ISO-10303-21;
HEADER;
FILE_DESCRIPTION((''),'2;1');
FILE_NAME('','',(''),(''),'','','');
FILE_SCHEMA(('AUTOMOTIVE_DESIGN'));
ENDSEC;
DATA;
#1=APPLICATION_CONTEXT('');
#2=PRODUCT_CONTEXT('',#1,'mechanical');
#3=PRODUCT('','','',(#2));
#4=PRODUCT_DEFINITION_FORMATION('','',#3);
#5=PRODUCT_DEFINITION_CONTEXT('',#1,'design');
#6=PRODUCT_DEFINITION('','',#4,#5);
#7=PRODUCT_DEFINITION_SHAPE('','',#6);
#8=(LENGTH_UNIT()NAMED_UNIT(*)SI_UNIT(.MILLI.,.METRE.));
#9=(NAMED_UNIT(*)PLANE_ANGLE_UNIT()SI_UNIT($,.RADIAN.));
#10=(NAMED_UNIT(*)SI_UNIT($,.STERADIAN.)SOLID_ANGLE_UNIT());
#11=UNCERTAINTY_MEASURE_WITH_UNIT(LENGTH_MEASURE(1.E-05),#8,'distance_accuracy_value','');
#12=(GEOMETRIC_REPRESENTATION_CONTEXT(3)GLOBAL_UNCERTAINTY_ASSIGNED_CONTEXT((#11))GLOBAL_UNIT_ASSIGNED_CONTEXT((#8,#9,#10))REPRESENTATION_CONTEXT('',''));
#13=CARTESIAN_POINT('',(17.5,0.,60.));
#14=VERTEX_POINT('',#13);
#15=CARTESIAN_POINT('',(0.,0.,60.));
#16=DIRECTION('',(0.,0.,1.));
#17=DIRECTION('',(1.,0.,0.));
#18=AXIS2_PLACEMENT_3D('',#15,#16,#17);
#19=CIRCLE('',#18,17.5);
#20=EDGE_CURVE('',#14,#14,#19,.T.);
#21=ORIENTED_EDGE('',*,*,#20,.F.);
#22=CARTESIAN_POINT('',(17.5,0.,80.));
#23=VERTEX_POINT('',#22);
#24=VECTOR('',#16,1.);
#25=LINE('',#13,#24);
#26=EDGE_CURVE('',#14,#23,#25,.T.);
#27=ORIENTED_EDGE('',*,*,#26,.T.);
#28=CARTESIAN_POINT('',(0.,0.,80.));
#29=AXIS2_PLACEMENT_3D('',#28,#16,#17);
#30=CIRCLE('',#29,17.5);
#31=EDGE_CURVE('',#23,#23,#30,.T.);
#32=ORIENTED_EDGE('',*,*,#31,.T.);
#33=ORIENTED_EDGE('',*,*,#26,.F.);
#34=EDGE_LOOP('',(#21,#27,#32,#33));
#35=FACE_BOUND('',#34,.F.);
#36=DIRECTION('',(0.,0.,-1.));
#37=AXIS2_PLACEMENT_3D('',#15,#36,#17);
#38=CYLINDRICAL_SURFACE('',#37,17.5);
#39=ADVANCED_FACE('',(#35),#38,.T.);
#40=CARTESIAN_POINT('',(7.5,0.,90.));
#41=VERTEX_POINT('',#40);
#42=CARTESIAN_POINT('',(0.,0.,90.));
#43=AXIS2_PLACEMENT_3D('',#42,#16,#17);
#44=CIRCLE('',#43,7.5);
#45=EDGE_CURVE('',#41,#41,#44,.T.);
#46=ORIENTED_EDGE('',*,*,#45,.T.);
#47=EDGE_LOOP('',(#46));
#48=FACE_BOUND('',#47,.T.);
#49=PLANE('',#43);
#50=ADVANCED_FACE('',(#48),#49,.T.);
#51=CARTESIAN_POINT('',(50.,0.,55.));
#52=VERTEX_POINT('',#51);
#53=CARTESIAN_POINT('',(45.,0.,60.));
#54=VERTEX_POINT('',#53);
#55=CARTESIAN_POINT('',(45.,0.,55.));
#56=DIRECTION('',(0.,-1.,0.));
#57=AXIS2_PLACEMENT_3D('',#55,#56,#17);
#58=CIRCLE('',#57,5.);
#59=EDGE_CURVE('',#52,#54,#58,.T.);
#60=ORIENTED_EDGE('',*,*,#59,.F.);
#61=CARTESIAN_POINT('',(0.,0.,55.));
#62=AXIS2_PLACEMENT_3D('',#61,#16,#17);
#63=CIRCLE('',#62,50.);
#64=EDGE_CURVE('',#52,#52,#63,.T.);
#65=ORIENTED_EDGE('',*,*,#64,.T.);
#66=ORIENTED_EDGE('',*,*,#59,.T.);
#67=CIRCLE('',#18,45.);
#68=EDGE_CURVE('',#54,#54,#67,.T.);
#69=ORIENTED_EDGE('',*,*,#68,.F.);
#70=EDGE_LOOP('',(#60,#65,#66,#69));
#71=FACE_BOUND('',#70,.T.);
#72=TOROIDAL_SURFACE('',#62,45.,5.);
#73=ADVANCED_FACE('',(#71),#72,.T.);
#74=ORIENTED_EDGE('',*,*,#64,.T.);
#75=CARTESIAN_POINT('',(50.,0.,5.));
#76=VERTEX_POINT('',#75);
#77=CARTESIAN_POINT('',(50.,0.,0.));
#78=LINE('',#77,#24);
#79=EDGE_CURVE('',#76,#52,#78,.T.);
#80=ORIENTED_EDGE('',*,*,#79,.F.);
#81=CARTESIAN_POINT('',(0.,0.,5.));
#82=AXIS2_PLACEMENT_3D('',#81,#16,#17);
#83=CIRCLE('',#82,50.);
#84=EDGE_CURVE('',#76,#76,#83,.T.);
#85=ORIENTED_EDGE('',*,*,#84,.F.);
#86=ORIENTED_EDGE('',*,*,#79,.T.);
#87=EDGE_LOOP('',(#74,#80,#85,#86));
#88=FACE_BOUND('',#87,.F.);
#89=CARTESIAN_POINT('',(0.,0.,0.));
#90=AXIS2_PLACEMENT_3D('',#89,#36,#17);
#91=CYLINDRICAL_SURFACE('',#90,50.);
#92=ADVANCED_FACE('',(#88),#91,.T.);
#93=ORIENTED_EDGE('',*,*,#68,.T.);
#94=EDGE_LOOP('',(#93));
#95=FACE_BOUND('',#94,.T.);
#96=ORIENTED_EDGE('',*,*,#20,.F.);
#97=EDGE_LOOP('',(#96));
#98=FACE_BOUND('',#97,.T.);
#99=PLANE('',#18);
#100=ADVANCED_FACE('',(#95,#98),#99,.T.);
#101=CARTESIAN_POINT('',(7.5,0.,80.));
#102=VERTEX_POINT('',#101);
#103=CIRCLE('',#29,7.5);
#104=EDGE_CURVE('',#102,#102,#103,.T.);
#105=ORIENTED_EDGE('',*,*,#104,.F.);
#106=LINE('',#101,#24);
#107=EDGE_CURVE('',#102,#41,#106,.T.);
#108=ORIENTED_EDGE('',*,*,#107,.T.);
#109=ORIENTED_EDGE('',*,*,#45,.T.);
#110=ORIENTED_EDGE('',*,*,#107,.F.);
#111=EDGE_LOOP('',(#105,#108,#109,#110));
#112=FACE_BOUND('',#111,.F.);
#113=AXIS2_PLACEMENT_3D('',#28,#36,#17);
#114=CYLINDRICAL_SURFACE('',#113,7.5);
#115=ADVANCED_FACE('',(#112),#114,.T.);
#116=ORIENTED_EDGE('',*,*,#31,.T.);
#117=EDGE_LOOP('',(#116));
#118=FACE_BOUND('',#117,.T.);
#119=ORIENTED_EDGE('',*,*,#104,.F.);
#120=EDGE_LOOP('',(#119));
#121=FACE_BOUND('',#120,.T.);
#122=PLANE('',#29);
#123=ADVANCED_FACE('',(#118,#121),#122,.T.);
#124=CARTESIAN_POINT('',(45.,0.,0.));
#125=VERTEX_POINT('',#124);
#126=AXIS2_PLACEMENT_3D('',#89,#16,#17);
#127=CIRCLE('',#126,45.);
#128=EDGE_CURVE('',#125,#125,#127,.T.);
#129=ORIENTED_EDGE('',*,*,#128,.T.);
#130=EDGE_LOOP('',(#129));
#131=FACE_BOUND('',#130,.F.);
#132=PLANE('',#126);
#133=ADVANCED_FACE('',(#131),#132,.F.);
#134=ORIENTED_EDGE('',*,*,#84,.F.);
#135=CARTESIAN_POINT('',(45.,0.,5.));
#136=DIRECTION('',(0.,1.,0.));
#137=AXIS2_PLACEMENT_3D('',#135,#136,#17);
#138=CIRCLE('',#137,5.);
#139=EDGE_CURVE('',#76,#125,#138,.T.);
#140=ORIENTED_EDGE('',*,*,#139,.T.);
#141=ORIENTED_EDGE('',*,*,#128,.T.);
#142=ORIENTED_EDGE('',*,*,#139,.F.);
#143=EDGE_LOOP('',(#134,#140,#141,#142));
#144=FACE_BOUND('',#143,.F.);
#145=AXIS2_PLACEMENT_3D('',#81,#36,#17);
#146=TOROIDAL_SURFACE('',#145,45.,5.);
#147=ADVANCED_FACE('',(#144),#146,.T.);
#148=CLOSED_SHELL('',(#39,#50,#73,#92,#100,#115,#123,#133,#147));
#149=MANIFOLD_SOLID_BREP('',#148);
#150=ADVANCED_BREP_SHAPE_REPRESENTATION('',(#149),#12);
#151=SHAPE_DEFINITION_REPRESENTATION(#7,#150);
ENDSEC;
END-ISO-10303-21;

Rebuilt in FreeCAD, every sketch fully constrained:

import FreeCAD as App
import Part
import Sketcher

V = App.Vector


def edges_at(feature, points):
    """Names of the edges that pass closest to the given points."""
    edges = feature.Shape.Edges
    near = lambda p: min(range(len(edges)), key=lambda i: edges[i].distToShape(Part.Vertex(*p))[0])
    return sorted({f"Edge{near(p) + 1}" for p in points})

doc = App.newDocument("Part")
body = doc.addObject("PartDesign::Body", "Body")

# Sketch on XY plane
sketch1 = body.newObject("Sketcher::SketchObject", "Sketch")
sketch1.AttachmentSupport = (doc.getObject("XY_Plane"), [""])
sketch1.MapMode = "FlatFace"
sketch1.addGeometry(Part.Circle(V(0, 0, 0), V(0, 0, 1), 50), False)
sketch1.addConstraint([
    Sketcher.Constraint("Coincident", 0, 3, -1, 1),
    Sketcher.Constraint("Diameter", 0, 100.0),
])
pad1 = body.newObject("PartDesign::Pad", "Pad")
pad1.Profile = sketch1
pad1.Length = 60
doc.recompute()

fillet = body.newObject("PartDesign::Fillet", "Fillet")
fillet.Base = (pad1, edges_at(pad1, [(-50, 0, 60), (-50, 0, 0)]))
fillet.Radius = 5

# Sketch on XY plane
sketch2 = body.newObject("Sketcher::SketchObject", "Sketch001")
sketch2.AttachmentSupport = (doc.getObject("XY_Plane"), [""])
sketch2.MapMode = "FlatFace"
sketch2.AttachmentOffset = App.Placement(V(0, 0, 60), App.Rotation())
sketch2.addGeometry(Part.Circle(V(0, 0, 0), V(0, 0, 1), 17.5), False)
sketch2.addConstraint([
    Sketcher.Constraint("Coincident", 0, 3, -1, 1),
    Sketcher.Constraint("Diameter", 0, 35.0),
])
pad2 = body.newObject("PartDesign::Pad", "Pad001")
pad2.Profile = sketch2
pad2.Length = 20

# Sketch on XY plane
sketch3 = body.newObject("Sketcher::SketchObject", "Sketch002")
sketch3.AttachmentSupport = (doc.getObject("XY_Plane"), [""])
sketch3.MapMode = "FlatFace"
sketch3.AttachmentOffset = App.Placement(V(0, 0, 80), App.Rotation())
sketch3.addGeometry(Part.Circle(V(0, 0, 0), V(0, 0, 1), 7.5), False)
sketch3.addConstraint([
    Sketcher.Constraint("Coincident", 0, 3, -1, 1),
    Sketcher.Constraint("Diameter", 0, 15.0),
])
pad3 = body.newObject("PartDesign::Pad", "Pad002")
pad3.Profile = sketch3
pad3.Length = 10

doc.recompute()
